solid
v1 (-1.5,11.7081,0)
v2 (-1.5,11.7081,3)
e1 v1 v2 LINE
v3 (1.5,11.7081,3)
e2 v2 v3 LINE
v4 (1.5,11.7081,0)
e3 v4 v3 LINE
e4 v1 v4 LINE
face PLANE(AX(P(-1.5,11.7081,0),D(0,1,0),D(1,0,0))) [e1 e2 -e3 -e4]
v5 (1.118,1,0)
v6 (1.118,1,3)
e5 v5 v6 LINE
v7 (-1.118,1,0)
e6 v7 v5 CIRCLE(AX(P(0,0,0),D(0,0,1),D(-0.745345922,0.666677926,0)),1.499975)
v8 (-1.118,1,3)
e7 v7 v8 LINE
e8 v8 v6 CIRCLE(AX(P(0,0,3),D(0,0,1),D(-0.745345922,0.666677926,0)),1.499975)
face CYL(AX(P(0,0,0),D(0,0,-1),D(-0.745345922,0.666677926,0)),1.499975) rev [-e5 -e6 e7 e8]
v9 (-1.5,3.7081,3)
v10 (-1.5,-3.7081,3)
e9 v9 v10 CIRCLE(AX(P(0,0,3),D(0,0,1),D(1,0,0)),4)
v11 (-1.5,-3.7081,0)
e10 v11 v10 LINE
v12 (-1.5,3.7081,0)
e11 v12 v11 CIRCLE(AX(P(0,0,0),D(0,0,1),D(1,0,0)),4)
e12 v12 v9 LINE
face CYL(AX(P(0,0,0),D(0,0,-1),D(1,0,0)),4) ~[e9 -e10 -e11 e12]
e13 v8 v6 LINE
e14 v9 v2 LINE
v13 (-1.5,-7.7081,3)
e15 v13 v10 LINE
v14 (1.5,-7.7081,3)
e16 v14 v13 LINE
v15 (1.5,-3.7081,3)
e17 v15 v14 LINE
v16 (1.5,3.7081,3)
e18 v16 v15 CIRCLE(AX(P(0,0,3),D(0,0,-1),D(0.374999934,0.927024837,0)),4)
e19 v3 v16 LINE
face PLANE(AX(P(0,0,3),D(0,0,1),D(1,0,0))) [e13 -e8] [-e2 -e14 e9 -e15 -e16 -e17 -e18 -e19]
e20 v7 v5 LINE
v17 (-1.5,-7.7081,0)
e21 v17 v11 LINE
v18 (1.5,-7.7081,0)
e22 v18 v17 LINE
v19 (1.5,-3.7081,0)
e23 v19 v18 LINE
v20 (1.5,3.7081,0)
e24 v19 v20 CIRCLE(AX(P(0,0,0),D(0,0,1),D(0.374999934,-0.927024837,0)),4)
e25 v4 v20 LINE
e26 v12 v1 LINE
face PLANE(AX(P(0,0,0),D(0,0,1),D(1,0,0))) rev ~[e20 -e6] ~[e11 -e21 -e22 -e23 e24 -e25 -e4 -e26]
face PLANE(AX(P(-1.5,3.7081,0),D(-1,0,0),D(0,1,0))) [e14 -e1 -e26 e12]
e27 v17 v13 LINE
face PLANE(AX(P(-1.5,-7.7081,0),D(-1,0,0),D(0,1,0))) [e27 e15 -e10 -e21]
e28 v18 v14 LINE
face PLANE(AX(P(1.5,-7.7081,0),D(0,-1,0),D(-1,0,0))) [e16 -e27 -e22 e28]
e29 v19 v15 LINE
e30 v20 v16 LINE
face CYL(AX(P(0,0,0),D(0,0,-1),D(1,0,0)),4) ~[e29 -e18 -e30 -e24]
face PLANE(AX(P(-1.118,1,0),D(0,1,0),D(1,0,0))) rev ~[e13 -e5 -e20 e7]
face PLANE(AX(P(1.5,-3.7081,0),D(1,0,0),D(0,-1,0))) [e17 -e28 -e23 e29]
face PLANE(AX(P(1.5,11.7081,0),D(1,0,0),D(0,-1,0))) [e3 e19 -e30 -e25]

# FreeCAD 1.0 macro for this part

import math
import FreeCAD as App
import Part
import Sketcher
Q = App.Units.Quantity

doc = App.newDocument("Part")
body = doc.addObject("PartDesign::Body", "Body")

# Sketch on XY plane
sketch1 = doc.addObject("Sketcher::SketchObject", "Sketch")
body.addObject(sketch1)
sketch1.AttachmentSupport = (doc.XY_Plane, [""])
sketch1.MapMode = "FlatFace"
sketch1.addGeometry([
    Part.ArcOfCircle(Part.Circle(App.Vector(0, 0, 0), App.Vector(0, 0, 1), 4), math.radians(-68), math.radians(68)),  # 0
    Part.LineSegment(App.Vector(1.5, 3.7, 0), App.Vector(1.5, 11.7, 0)),  # 1
    Part.LineSegment(App.Vector(1.5, 11.7, 0), App.Vector(-1.5, 11.7, 0)),  # 2
    Part.LineSegment(App.Vector(-1.5, 11.7, 0), App.Vector(-1.5, 3.7, 0)),  # 3
    Part.ArcOfCircle(Part.Circle(App.Vector(0, 0, 0), App.Vector(0, 0, 1), 4), math.radians(112), math.radians(248)),  # 4
    Part.LineSegment(App.Vector(-1.5, -3.7, 0), App.Vector(-1.5, -7.7, 0)),  # 5
    Part.LineSegment(App.Vector(-1.5, -7.7, 0), App.Vector(1.5, -7.7, 0)),  # 6
    Part.LineSegment(App.Vector(1.5, -7.7, 0), App.Vector(1.5, -3.7, 0)),  # 7
    Part.ArcOfCircle(Part.Circle(App.Vector(0, 0, 0), App.Vector(0, 0, 1), 1.5), math.radians(138), math.radians(402)),  # 8
    Part.LineSegment(App.Vector(-1.1, 1, 0), App.Vector(1.1, 1, 0)),  # 9
], False)
sketch1.addConstraint([
    Sketcher.Constraint("Coincident", 0, 2, 1, 1),
    Sketcher.Constraint("Coincident", 1, 2, 2, 1),
    Sketcher.Constraint("Coincident", 2, 2, 3, 1),
    Sketcher.Constraint("Coincident", 3, 2, 4, 1),
    Sketcher.Constraint("Coincident", 4, 2, 5, 1),
    Sketcher.Constraint("Coincident", 5, 2, 6, 1),
    Sketcher.Constraint("Coincident", 6, 2, 7, 1),
    Sketcher.Constraint("Coincident", 7, 2, 0, 1),
    Sketcher.Constraint("Coincident", 8, 1, 9, 1),
    Sketcher.Constraint("Coincident", 9, 2, 8, 2),
    Sketcher.Constraint("Vertical", 1),
    Sketcher.Constraint("Horizontal", 2),
    Sketcher.Constraint("Vertical", 3),
    Sketcher.Constraint("Vertical", 5),
    Sketcher.Constraint("Horizontal", 6),
    Sketcher.Constraint("Vertical", 7),
    Sketcher.Constraint("Horizontal", 9),
    Sketcher.Constraint("Coincident", 0, 3, -1, 1),
    Sketcher.Constraint("Coincident", 4, 3, -1, 1),
    Sketcher.Constraint("Coincident", 8, 3, -1, 1),
    Sketcher.Constraint("Equal", 0, 4),
    Sketcher.Constraint("Horizontal", 0, 2, 3, 2),
    Sketcher.Constraint("Horizontal", 4, 2, 7, 2),
    Sketcher.Constraint("Vertical", 3, 2, 4, 2),
    Sketcher.Constraint("Radius", 0, Q("4 mm")),
    Sketcher.Constraint("Radius", 8, Q("1.5 mm")),
    Sketcher.Constraint("DistanceX", 2, 2, 2, 1, Q("3 mm")),
    Sketcher.Constraint("DistanceY", 1, 1, 1, 2, Q("8 mm")),
    Sketcher.Constraint("DistanceY", 5, 2, 5, 1, Q("4 mm")),
    Sketcher.Constraint("DistanceY", -1, 1, 8, 1, Q("1 mm")),
])
pad1 = doc.addObject("PartDesign::Pad", "Pad")
body.addObject(pad1)
pad1.Profile = sketch1
pad1.Length = 3

doc.recompute()
